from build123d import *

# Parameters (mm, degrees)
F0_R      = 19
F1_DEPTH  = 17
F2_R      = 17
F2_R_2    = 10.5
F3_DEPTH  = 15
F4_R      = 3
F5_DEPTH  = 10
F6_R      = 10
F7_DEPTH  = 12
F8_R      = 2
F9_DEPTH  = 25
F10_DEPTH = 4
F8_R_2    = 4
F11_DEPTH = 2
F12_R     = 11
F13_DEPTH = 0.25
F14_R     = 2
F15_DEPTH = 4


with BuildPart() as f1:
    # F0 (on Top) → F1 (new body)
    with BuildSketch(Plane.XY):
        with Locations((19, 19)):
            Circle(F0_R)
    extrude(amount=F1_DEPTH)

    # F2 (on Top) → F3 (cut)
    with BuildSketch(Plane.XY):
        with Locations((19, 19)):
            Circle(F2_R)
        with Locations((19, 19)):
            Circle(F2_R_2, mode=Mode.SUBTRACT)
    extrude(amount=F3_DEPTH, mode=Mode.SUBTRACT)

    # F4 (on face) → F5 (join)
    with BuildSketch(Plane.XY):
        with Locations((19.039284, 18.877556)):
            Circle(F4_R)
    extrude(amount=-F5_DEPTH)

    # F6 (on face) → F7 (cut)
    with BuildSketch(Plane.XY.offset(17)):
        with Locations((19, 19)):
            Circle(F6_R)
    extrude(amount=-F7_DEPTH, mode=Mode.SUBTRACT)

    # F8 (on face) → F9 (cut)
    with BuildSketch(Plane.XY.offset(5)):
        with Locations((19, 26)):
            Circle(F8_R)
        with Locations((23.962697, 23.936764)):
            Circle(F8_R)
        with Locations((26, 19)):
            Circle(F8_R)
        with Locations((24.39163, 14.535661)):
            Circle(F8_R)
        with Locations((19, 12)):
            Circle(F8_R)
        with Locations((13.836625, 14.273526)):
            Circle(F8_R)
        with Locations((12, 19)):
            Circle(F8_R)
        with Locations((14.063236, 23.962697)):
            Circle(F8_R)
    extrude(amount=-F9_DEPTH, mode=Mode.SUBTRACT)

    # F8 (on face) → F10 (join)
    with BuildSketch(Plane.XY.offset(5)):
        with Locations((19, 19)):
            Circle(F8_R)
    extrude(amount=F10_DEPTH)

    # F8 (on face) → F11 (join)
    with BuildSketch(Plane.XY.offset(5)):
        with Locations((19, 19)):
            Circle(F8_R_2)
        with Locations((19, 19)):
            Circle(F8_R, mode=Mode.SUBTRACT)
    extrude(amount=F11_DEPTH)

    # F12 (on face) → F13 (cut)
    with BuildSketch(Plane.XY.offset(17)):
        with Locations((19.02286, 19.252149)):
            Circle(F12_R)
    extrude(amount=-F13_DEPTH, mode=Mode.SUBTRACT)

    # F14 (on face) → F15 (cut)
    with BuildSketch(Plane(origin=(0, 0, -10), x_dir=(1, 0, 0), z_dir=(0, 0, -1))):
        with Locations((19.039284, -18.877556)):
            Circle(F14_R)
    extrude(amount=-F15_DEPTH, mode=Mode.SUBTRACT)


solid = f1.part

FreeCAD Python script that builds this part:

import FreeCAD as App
import Part
import Sketcher
from FreeCAD import Vector

doc = App.newDocument("Part")
body = doc.addObject("PartDesign::Body", "Body")

# Sketch on XY plane
sketch1 = doc.addObject("Sketcher::SketchObject", "Sketch")
body.addObject(sketch1)
sketch1.AttachmentSupport = (doc.XY_Plane, [""])
sketch1.MapMode = "FlatFace"
sketch1.addGeometry(Part.Circle(Vector(19, 19, 0), Vector(0, 0, 1), 19), False)
sketch1.addConstraint(Sketcher.Constraint("Diameter", 0, 38.0))
sketch1.addConstraint(Sketcher.Constraint("DistanceX", -1, 1, 0, 3, 19.0))
sketch1.addConstraint(Sketcher.Constraint("DistanceY", -1, 1, 0, 3, 19.0))
pad1 = doc.addObject("PartDesign::Pad", "Pad")
body.addObject(pad1)
pad1.Profile = sketch1
pad1.Length = 17

# Sketch on XY plane
sketch2 = doc.addObject("Sketcher::SketchObject", "Sketch001")
body.addObject(sketch2)
sketch2.AttachmentSupport = (doc.XY_Plane, [""])
sketch2.MapMode = "FlatFace"
sketch2.addGeometry(Part.Circle(Vector(19, 19, 0), Vector(0, 0, 1), 17), False)
sketch2.addGeometry(Part.Circle(Vector(19, 19, 0), Vector(0, 0, 1), 10.5), False)
sketch2.addConstraint(Sketcher.Constraint("Coincident", 1, 3, 0, 3))
sketch2.addConstraint(Sketcher.Constraint("Diameter", 0, 34.0))
sketch2.addConstraint(Sketcher.Constraint("Diameter", 1, 21.0))
sketch2.addConstraint(Sketcher.Constraint("DistanceX", -1, 1, 0, 3, 19.0))
sketch2.addConstraint(Sketcher.Constraint("DistanceY", -1, 1, 0, 3, 19.0))
pocket1 = doc.addObject("PartDesign::Pocket", "Pocket")
body.addObject(pocket1)
pocket1.Profile = sketch2
pocket1.Length = 15
pocket1.Reversed = True

# Sketch on XY plane
sketch3 = doc.addObject("Sketcher::SketchObject", "Sketch002")
body.addObject(sketch3)
sketch3.AttachmentSupport = (doc.XY_Plane, [""])
sketch3.MapMode = "FlatFace"
sketch3.addGeometry(Part.Circle(Vector(19.039284, 18.877556, 0), Vector(0, 0, 1), 3), False)
sketch3.addConstraint(Sketcher.Constraint("Diameter", 0, 6.0))
sketch3.addConstraint(Sketcher.Constraint("DistanceX", -1, 1, 0, 3, 19.039284))
sketch3.addConstraint(Sketcher.Constraint("DistanceY", -1, 1, 0, 3, 18.877556))
pad2 = doc.addObject("PartDesign::Pad", "Pad001")
body.addObject(pad2)
pad2.Profile = sketch3
pad2.Length = 10
pad2.Reversed = True

# Sketch on XY plane
sketch4 = doc.addObject("Sketcher::SketchObject", "Sketch003")
body.addObject(sketch4)
sketch4.AttachmentSupport = (doc.XY_Plane, [""])
sketch4.MapMode = "FlatFace"
sketch4.AttachmentOffset = App.Placement(Vector(0, 0, 17), App.Rotation())
sketch4.addGeometry(Part.Circle(Vector(19, 19, 0), Vector(0, 0, 1), 10), False)
sketch4.addConstraint(Sketcher.Constraint("Diameter", 0, 20.0))
sketch4.addConstraint(Sketcher.Constraint("DistanceX", -1, 1, 0, 3, 19.0))
sketch4.addConstraint(Sketcher.Constraint("DistanceY", -1, 1, 0, 3, 19.0))
pocket2 = doc.addObject("PartDesign::Pocket", "Pocket001")
body.addObject(pocket2)
pocket2.Profile = sketch4
pocket2.Length = 12

# Sketch on XY plane
sketch5 = doc.addObject("Sketcher::SketchObject", "Sketch004")
body.addObject(sketch5)
sketch5.AttachmentSupport = (doc.XY_Plane, [""])
sketch5.MapMode = "FlatFace"
sketch5.AttachmentOffset = App.Placement(Vector(0, 0, 5), App.Rotation())
sketch5.addGeometry(Part.Circle(Vector(19, 26, 0), Vector(0, 0, 1), 2), False)
sketch5.addGeometry(Part.Circle(Vector(23.962697, 23.936764, 0), Vector(0, 0, 1), 2), False)
sketch5.addGeometry(Part.Circle(Vector(26, 19, 0), Vector(0, 0, 1), 2), False)
sketch5.addGeometry(Part.Circle(Vector(24.39163, 14.535661, 0), Vector(0, 0, 1), 2), False)
sketch5.addGeometry(Part.Circle(Vector(19, 12, 0), Vector(0, 0, 1), 2), False)
sketch5.addGeometry(Part.Circle(Vector(13.836625, 14.273526, 0), Vector(0, 0, 1), 2), False)
sketch5.addGeometry(Part.Circle(Vector(12, 19, 0), Vector(0, 0, 1), 2), False)
sketch5.addGeometry(Part.Circle(Vector(14.063236, 23.962697, 0), Vector(0, 0, 1), 2), False)
sketch5.addConstraint(Sketcher.Constraint("Equal", 0, 1))
sketch5.addConstraint(Sketcher.Constraint("Equal", 1, 2))
sketch5.addConstraint(Sketcher.Constraint("Equal", 2, 3))
sketch5.addConstraint(Sketcher.Constraint("Equal", 3, 4))
sketch5.addConstraint(Sketcher.Constraint("Equal", 4, 5))
sketch5.addConstraint(Sketcher.Constraint("Equal", 5, 6))
sketch5.addConstraint(Sketcher.Constraint("Equal", 6, 7))
sketch5.addConstraint(Sketcher.Constraint("Horizontal", 2, 3, 6, 3))
sketch5.addConstraint(Sketcher.Constraint("Vertical", 0, 3, 4, 3))
sketch5.addConstraint(Sketcher.Constraint("Diameter", 0, 4.0))
sketch5.addConstraint(Sketcher.Constraint("DistanceX", -1, 1, 0, 3, 19.0))
sketch5.addConstraint(Sketcher.Constraint("DistanceY", -1, 1, 0, 3, 26.0))
sketch5.addConstraint(Sketcher.Constraint("DistanceX", -1, 1, 2, 3, 26.0))
sketch5.addConstraint(Sketcher.Constraint("DistanceY", -1, 1, 2, 3, 19.0))
sketch5.addConstraint(Sketcher.Constraint("DistanceY", -1, 1, 4, 3, 12.0))
sketch5.addConstraint(Sketcher.Constraint("DistanceX", -1, 1, 6, 3, 12.0))
sketch5.addConstraint(Sketcher.Constraint("DistanceX", -1, 1, 3, 3, 24.39163))
sketch5.addConstraint(Sketcher.Constraint("DistanceY", -1, 1, 3, 3, 14.535661))
sketch5.addConstraint(Sketcher.Constraint("DistanceX", 5, 3, 1, 3, 10.126072))
sketch5.addConstraint(Sketcher.Constraint("DistanceX", 5, 3, 7, 3, 0.226611))
sketch5.addConstraint(Sketcher.Constraint("DistanceY", 5, 3, 7, 3, 9.689171))
sketch5.addConstraint(Sketcher.Constraint("DistanceX", -1, 1, 1, 3, 23.962697))
sketch5.addConstraint(Sketcher.Constraint("DistanceY", -1, 1, 1, 3, 23.936764))
sketch5.addConstraint(Sketcher.Constraint("DistanceY", -1, 1, 5, 3, 14.273526))
pocket3 = doc.addObject("PartDesign::Pocket", "Pocket002")
body.addObject(pocket3)
pocket3.Profile = sketch5
pocket3.Length = 25

# Sketch on XY plane
sketch6 = doc.addObject("Sketcher::SketchObject", "Sketch005")
body.addObject(sketch6)
sketch6.AttachmentSupport = (doc.XY_Plane, [""])
sketch6.MapMode = "FlatFace"
sketch6.AttachmentOffset = App.Placement(Vector(0, 0, 5), App.Rotation())
sketch6.addGeometry(Part.Circle(Vector(19, 19, 0), Vector(0, 0, 1), 2), False)
sketch6.addConstraint(Sketcher.Constraint("Diameter", 0, 4.0))
sketch6.addConstraint(Sketcher.Constraint("DistanceX", -1, 1, 0, 3, 19.0))
sketch6.addConstraint(Sketcher.Constraint("DistanceY", -1, 1, 0, 3, 19.0))
pad3 = doc.addObject("PartDesign::Pad", "Pad002")
body.addObject(pad3)
pad3.Profile = sketch6
pad3.Length = 4

# Sketch on XY plane
sketch7 = doc.addObject("Sketcher::SketchObject", "Sketch006")
body.addObject(sketch7)
sketch7.AttachmentSupport = (doc.XY_Plane, [""])
sketch7.MapMode = "FlatFace"
sketch7.AttachmentOffset = App.Placement(Vector(0, 0, 5), App.Rotation())
sketch7.addGeometry(Part.Circle(Vector(19, 19, 0), Vector(0, 0, 1), 4), False)
sketch7.addGeometry(Part.Circle(Vector(19, 19, 0), Vector(0, 0, 1), 2), False)
sketch7.addConstraint(Sketcher.Constraint("Coincident", 1, 3, 0, 3))
sketch7.addConstraint(Sketcher.Constraint("Diameter", 0, 8.0))
sketch7.addConstraint(Sketcher.Constraint("Diameter", 1, 4.0))
sketch7.addConstraint(Sketcher.Constraint("DistanceX", -1, 1, 0, 3, 19.0))
sketch7.addConstraint(Sketcher.Constraint("DistanceY", -1, 1, 0, 3, 19.0))
pad4 = doc.addObject("PartDesign::Pad", "Pad003")
body.addObject(pad4)
pad4.Profile = sketch7
pad4.Length = 2

# Sketch on XY plane
sketch8 = doc.addObject("Sketcher::SketchObject", "Sketch007")
body.addObject(sketch8)
sketch8.AttachmentSupport = (doc.XY_Plane, [""])
sketch8.MapMode = "FlatFace"
sketch8.AttachmentOffset = App.Placement(Vector(0, 0, 17), App.Rotation())
sketch8.addGeometry(Part.Circle(Vector(19.02286, 19.252149, 0), Vector(0, 0, 1), 11), False)
sketch8.addConstraint(Sketcher.Constraint("Diameter", 0, 22.0))
sketch8.addConstraint(Sketcher.Constraint("DistanceX", -1, 1, 0, 3, 19.02286))
sketch8.addConstraint(Sketcher.Constraint("DistanceY", -1, 1, 0, 3, 19.252149))
pocket4 = doc.addObject("PartDesign::Pocket", "Pocket003")
body.addObject(pocket4)
pocket4.Profile = sketch8
pocket4.Length = 0.25

# Sketch on XY plane
sketch9 = doc.addObject("Sketcher::SketchObject", "Sketch008")
body.addObject(sketch9)
sketch9.AttachmentSupport = (doc.XY_Plane, [""])
sketch9.MapMode = "FlatFace"
sketch9.AttachmentOffset = App.Placement(Vector(0, 0, -10), App.Rotation())
sketch9.addGeometry(Part.Circle(Vector(19.039284, 18.877556, 0), Vector(0, 0, 1), 2), False)
sketch9.addConstraint(Sketcher.Constraint("Diameter", 0, 4.0))
sketch9.addConstraint(Sketcher.Constraint("DistanceX", -1, 1, 0, 3, 19.039284))
sketch9.addConstraint(Sketcher.Constraint("DistanceY", -1, 1, 0, 3, 18.877556))
pocket5 = doc.addObject("PartDesign::Pocket", "Pocket004")
body.addObject(pocket5)
pocket5.Profile = sketch9
pocket5.Length = 4
pocket5.Reversed = True

doc.recompute()
